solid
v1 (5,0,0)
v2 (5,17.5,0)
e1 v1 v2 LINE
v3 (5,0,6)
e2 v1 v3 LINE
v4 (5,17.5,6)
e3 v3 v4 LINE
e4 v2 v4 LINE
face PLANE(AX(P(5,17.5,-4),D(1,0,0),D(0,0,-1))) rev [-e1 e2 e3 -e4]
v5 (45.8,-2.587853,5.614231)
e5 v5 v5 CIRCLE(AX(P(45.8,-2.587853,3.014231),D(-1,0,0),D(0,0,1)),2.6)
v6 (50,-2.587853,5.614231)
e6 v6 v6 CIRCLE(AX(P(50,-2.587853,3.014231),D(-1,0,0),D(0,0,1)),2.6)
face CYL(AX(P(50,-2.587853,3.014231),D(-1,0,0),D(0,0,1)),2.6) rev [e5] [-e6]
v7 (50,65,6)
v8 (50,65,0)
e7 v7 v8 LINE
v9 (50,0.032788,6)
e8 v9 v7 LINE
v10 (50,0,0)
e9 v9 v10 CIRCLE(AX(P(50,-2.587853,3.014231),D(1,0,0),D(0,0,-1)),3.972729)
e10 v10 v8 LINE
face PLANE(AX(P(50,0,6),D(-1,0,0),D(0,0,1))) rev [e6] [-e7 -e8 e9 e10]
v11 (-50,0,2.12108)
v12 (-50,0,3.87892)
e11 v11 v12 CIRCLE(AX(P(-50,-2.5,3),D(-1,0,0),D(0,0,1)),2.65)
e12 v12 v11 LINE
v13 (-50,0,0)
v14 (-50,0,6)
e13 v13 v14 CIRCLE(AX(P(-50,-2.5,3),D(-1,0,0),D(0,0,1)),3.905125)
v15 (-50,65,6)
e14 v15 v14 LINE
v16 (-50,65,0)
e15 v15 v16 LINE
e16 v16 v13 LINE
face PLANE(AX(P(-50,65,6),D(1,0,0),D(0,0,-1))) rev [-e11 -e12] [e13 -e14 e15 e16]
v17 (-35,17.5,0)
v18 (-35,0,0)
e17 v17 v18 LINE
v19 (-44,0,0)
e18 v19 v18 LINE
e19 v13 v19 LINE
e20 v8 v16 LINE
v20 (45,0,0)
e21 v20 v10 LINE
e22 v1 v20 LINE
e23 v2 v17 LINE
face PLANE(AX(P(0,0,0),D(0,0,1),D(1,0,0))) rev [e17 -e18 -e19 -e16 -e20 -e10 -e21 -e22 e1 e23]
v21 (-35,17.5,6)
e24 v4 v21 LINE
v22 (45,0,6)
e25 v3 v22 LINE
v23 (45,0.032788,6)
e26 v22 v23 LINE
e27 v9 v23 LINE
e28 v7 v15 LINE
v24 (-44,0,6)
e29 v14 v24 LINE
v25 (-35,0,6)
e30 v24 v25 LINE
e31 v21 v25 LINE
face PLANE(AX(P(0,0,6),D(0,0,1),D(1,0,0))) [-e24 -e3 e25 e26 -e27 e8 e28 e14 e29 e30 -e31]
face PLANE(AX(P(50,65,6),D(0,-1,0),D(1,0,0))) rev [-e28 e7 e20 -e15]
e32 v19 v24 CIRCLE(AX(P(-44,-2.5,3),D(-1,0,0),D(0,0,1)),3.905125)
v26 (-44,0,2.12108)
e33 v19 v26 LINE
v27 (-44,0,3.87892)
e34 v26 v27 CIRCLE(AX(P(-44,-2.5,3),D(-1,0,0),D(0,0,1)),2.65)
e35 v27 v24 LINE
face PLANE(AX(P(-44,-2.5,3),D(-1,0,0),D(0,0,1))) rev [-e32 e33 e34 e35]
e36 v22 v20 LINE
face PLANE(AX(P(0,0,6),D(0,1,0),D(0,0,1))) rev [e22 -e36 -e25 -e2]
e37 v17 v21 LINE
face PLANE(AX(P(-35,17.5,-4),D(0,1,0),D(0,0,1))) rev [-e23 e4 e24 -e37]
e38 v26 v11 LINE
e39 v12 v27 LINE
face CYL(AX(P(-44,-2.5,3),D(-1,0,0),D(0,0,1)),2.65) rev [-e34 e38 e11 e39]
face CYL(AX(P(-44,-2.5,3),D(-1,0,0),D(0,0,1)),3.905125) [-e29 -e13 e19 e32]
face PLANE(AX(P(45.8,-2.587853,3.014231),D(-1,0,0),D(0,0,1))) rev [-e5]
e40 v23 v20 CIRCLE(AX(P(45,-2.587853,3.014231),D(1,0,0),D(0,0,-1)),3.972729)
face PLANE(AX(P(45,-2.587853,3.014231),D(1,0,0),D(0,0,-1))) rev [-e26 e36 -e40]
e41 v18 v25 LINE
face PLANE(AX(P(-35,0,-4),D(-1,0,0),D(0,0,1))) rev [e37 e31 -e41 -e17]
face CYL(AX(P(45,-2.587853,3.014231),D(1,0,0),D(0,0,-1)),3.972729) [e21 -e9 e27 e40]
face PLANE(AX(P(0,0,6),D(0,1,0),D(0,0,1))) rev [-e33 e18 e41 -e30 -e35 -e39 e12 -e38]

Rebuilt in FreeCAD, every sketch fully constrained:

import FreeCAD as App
import Part
import Sketcher

V = App.Vector
Q = App.Units.Quantity


def add_polygon(sketch, points):
    """Adds a closed chain of lines whose ends are joined by coincident constraints."""
    first, n = sketch.GeometryCount, len(points)
    for a, b in zip(points, points[1:] + points[:1]):
        sketch.addGeometry(Part.LineSegment(App.Vector(*a, 0), App.Vector(*b, 0)), False)
    for i in range(n):
        sketch.addConstraint(Sketcher.Constraint("Coincident", first + i, 2, first + (i + 1) % n, 1))

doc = App.newDocument("Part")
body = doc.addObject("PartDesign::Body", "Body")

# Sketch on XY plane
sketch1 = body.newObject("Sketcher::SketchObject", "Sketch")
sketch1.AttachmentSupport = (doc.getObject("XY_Plane"), [""])
sketch1.MapMode = "FlatFace"
add_polygon(sketch1, [(50, 0), (50, 65), (-50, 65), (-50, 0)])  # lines 0-3
sketch1.addConstraint(Sketcher.Constraint("Vertical", 0))
sketch1.addConstraint(Sketcher.Constraint("Horizontal", 1))
sketch1.addConstraint(Sketcher.Constraint("Vertical", 2))
sketch1.addConstraint(Sketcher.Constraint("Horizontal", 3))
sketch1.addConstraint(Sketcher.Constraint("Symmetric", 2, 2, 3, 2, -1, 1))
sketch1.addConstraint(Sketcher.Constraint("DistanceX", 1, 2, 1, 1, Q("100 mm")))
sketch1.addConstraint(Sketcher.Constraint("DistanceY", 0, 1, 0, 2, Q("65 mm")))
pad1 = body.newObject("PartDesign::Pad", "Pad")
pad1.Profile = sketch1
pad1.Length = 6

# Sketch on YZ plane
sketch2 = body.newObject("Sketcher::SketchObject", "Sketch001")
sketch2.AttachmentSupport = (doc.getObject("YZ_Plane"), [""])
sketch2.MapMode = "FlatFace"
sketch2.AttachmentOffset = App.Placement(V(0, 0, -50), App.Rotation())
sketch2.addGeometry(Part.Circle(V(-2.5, 3, 0), V(0, 0, 1), 3.9), False)
sketch2.addGeometry(Part.Circle(V(-2.5, 3, 0), V(0, 0, 1), 2.6), False)
sketch2.addConstraint(Sketcher.Constraint("Coincident", 1, 3, 0, 3))
sketch2.addConstraint(Sketcher.Constraint("Diameter", 1, Q("5.3 mm")))
sketch2.addConstraint(Sketcher.Constraint("DistanceY", -1, 1, 0, 3, Q("3 mm")))
sketch2.addConstraint(Sketcher.Constraint("DistanceX", 0, 3, -1, 1, Q("2.5 mm")))
sketch2.addConstraint(Sketcher.Constraint("Diameter", 0, Q("7.81025 mm")))
pad2 = body.newObject("PartDesign::Pad", "Pad001")
pad2.Profile = sketch2
pad2.Length = 6

# Sketch on YZ plane
sketch3 = body.newObject("Sketcher::SketchObject", "Sketch002")
sketch3.AttachmentSupport = (doc.getObject("YZ_Plane"), [""])
sketch3.MapMode = "FlatFace"
sketch3.AttachmentOffset = App.Placement(V(0, 0, 50), App.Rotation())
sketch3.addGeometry(Part.Circle(V(-2.6, 3, 0), V(0, 0, 1), 4), False)
sketch3.addConstraint(Sketcher.Constraint("Diameter", 0, Q("7.945457 mm")))
sketch3.addConstraint(Sketcher.Constraint("DistanceY", -1, 1, 0, 3, Q("3.014231 mm")))
sketch3.addConstraint(Sketcher.Constraint("DistanceX", 0, 3, -1, 1, Q("2.587853 mm")))
pad3 = body.newObject("PartDesign::Pad", "Pad002")
pad3.Profile = sketch3
pad3.Length = 5
pad3.Reversed = True

# Sketch on YZ plane
sketch4 = body.newObject("Sketcher::SketchObject", "Sketch003")
sketch4.AttachmentSupport = (doc.getObject("YZ_Plane"), [""])
sketch4.MapMode = "FlatFace"
sketch4.AttachmentOffset = App.Placement(V(0, 0, 45.8), App.Rotation())
sketch4.addGeometry(Part.Circle(V(-2.6, 3, 0), V(0, 0, 1), 2.6), False)
sketch4.addConstraint(Sketcher.Constraint("Diameter", 0, Q("5.2 mm")))
sketch4.addConstraint(Sketcher.Constraint("DistanceY", -1, 1, 0, 3, Q("3.014231 mm")))
sketch4.addConstraint(Sketcher.Constraint("DistanceX", 0, 3, -1, 1, Q("2.587853 mm")))
pocket1 = body.newObject("PartDesign::Pocket", "Pocket")
pocket1.Profile = sketch4
pocket1.Length = 4.2
pocket1.Reversed = True

# Sketch on XY plane
sketch5 = body.newObject("Sketcher::SketchObject", "Sketch004")
sketch5.AttachmentSupport = (doc.getObject("XY_Plane"), [""])
sketch5.MapMode = "FlatFace"
sketch5.AttachmentOffset = App.Placement(V(0, 0, 6), App.Rotation())
add_polygon(sketch5, [(-35, 18), (-35, 0), (5, 0), (5, 18)])  # lines 0-3
sketch5.addConstraint(Sketcher.Constraint("Vertical", 0))
sketch5.addConstraint(Sketcher.Constraint("Horizontal", 1))
sketch5.addConstraint(Sketcher.Constraint("Vertical", 2))
sketch5.addConstraint(Sketcher.Constraint("Horizontal", 3))
sketch5.addConstraint(Sketcher.Constraint("PointOnObject", 0, 2, -1))
sketch5.addConstraint(Sketcher.Constraint("DistanceX", 1, 1, 1, 2, Q("40 mm")))
sketch5.addConstraint(Sketcher.Constraint("DistanceY", 0, 2, 0, 1, Q("17.5 mm")))
sketch5.addConstraint(Sketcher.Constraint("DistanceX", 0, 2, -1, 1, Q("35 mm")))
pocket2 = body.newObject("PartDesign::Pocket", "Pocket001")
pocket2.Profile = sketch5
pocket2.Length = 10

doc.recompute()
